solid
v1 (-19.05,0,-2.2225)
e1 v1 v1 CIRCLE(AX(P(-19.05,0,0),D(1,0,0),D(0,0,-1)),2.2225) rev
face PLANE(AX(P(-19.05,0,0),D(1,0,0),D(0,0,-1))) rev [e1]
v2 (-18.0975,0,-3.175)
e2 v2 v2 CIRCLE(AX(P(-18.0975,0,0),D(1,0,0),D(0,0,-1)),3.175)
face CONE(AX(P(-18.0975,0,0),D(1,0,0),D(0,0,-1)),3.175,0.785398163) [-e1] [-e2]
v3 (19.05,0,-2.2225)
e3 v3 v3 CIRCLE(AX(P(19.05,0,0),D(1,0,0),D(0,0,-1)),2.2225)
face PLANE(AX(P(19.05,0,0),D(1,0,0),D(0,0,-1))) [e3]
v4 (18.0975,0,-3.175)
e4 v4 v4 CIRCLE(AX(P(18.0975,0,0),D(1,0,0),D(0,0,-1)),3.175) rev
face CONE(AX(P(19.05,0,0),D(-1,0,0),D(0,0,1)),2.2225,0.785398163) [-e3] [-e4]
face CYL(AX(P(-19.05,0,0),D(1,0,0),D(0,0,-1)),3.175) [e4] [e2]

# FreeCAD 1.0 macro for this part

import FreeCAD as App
import Part
import Sketcher

V = App.Vector
Q = App.Units.Quantity


def edges_at(feature, points):
    """Names of the edges that pass closest to the given points."""
    edges = feature.Shape.Edges
    near = lambda p: min(range(len(edges)), key=lambda i: edges[i].distToShape(Part.Vertex(*p))[0])
    return sorted({f"Edge{near(p) + 1}" for p in points})

doc = App.newDocument("Part")
params = doc.addObject("Spreadsheet::Sheet", "Params")
for row, (alias, value) in enumerate([
    ("sketch1_diameter", "0.25 in"),
    ("pad1_length", "0.75 in"),
    ("pad1_length2", "0.75 in"),
    ("chamfer_size", "0.0375 in"),
], start=1):
    params.set(f"A{row}", alias)
    params.set(f"B{row}", "=" + value)
    params.setAlias(f"B{row}", alias)

body = doc.addObject("PartDesign::Body", "Body")

# Sketch on YZ plane
sketch1 = body.newObject("Sketcher::SketchObject", "Sketch")
sketch1.AttachmentSupport = (doc.getObject("YZ_Plane"), [""])
sketch1.MapMode = "FlatFace"
sketch1.addGeometry(Part.Circle(V(0, 0, 0), V(0, 0, 1), 3.2), False)
sketch1.addConstraint([
    Sketcher.Constraint("Coincident", 0, 3, -1, 1),
    Sketcher.Constraint("Diameter", 0, Q("0.25 in")),
])
sketch1.setExpression("Constraints[1]", "Params.sketch1_diameter")
pad1 = body.newObject("PartDesign::Pad", "Pad")
pad1.Profile = sketch1
pad1.Type = "TwoLengths"
pad1.setExpression("Length", "Params.pad1_length")
pad1.setExpression("Length2", "Params.pad1_length2")
doc.recompute()

chamfer = body.newObject("PartDesign::Chamfer", "Chamfer")
chamfer.Base = (pad1, edges_at(pad1, [(-19.05, 0, 3.175), (19.05, 0, 3.175)]))
chamfer.setExpression("Size", "Params.chamfer_size")

doc.recompute()
